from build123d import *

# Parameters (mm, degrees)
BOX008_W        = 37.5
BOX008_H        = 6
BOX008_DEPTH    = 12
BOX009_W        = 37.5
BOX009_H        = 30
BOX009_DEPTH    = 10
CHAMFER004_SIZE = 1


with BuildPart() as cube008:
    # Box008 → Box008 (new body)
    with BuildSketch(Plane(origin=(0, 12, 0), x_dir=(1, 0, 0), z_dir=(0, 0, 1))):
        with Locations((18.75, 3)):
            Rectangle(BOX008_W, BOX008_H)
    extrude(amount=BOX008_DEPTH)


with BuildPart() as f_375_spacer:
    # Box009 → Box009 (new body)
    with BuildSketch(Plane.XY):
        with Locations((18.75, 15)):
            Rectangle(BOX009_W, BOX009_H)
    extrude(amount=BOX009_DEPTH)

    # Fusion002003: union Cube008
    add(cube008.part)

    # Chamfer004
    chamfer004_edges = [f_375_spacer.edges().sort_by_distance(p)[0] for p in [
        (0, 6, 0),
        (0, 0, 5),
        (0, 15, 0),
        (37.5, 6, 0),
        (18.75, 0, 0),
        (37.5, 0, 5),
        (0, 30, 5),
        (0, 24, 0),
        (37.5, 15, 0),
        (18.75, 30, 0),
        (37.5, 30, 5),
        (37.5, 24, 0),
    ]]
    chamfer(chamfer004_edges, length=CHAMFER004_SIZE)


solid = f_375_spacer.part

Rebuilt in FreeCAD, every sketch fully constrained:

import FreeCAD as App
import Part
import Sketcher
Q = App.Units.Quantity


def edges_at(feature, points):
    """Names of the edges that pass closest to the given points."""
    edges = feature.Shape.Edges
    near = lambda p: min(range(len(edges)), key=lambda i: edges[i].distToShape(Part.Vertex(*p))[0])
    return sorted({f"Edge{near(p) + 1}" for p in points})

doc = App.newDocument("Part")
params = doc.addObject("Spreadsheet::Sheet", "Params")
for row, (alias, value) in enumerate([
    ("sketch1_height", "6 mm"),
    ("sketch1_width", "37.5 mm"),
    ("pad1_length", "12 mm"),
    ("sketch2_height", "30 mm"),
    ("sketch2_width", "37.5 mm"),
    ("pad2_length", "10 mm"),
    ("chamfer_size", "1 mm"),
], start=1):
    params.set(f"A{row}", alias)
    params.set(f"B{row}", "=" + value)
    params.setAlias(f"B{row}", alias)

body = doc.addObject("PartDesign::Body", "Body")

sketch1 = body.newObject("Sketcher::SketchObject", "Sketch")
sketch1.AttachmentSupport = (doc.getObject("XY_Plane"), [""])
sketch1.MapMode = "FlatFace"
sketch1.addGeometry([
    Part.LineSegment(App.Vector(0, 18, 0), App.Vector(0, 12, 0)),
    Part.LineSegment(App.Vector(0, 12, 0), App.Vector(38, 12, 0)),
    Part.LineSegment(App.Vector(38, 12, 0), App.Vector(38, 18, 0)),
    Part.LineSegment(App.Vector(38, 18, 0), App.Vector(0, 18, 0)),
], False)
sketch1.addConstraint([
    Sketcher.Constraint("Coincident", 0, 2, 1, 1),
    Sketcher.Constraint("Coincident", 1, 2, 2, 1),
    Sketcher.Constraint("Coincident", 2, 2, 3, 1),
    Sketcher.Constraint("Coincident", 3, 2, 0, 1),
    Sketcher.Constraint("Vertical", 0),
    Sketcher.Constraint("Horizontal", 1),
    Sketcher.Constraint("Vertical", 2),
    Sketcher.Constraint("Horizontal", 3),
    Sketcher.Constraint("PointOnObject", 0, 2, -2),
    Sketcher.Constraint("DistanceY", 0, 2, 0, 1, Q("6 mm")),
    Sketcher.Constraint("DistanceX", 1, 1, 1, 2, Q("37.5 mm")),
    Sketcher.Constraint("DistanceY", -1, 1, 0, 2, Q("12 mm")),
])
sketch1.setExpression("Constraints[9]", "Params.sketch1_height")
sketch1.setExpression("Constraints[10]", "Params.sketch1_width")
pad1 = body.newObject("PartDesign::Pad", "Pad")
pad1.Profile = sketch1
pad1.setExpression("Length", "Params.pad1_length")
body2 = doc.addObject("PartDesign::Body", "Body001")

sketch2 = body2.newObject("Sketcher::SketchObject", "Sketch001")
sketch2.AttachmentSupport = (doc.getObject("XY_Plane001"), [""])
sketch2.MapMode = "FlatFace"
sketch2.addGeometry([
    Part.LineSegment(App.Vector(0, 30, 0), App.Vector(0, 0, 0)),
    Part.LineSegment(App.Vector(0, 0, 0), App.Vector(38, 0, 0)),
    Part.LineSegment(App.Vector(38, 0, 0), App.Vector(38, 30, 0)),
    Part.LineSegment(App.Vector(38, 30, 0), App.Vector(0, 30, 0)),
], False)
sketch2.addConstraint([
    Sketcher.Constraint("Coincident", 0, 2, 1, 1),
    Sketcher.Constraint("Coincident", 1, 2, 2, 1),
    Sketcher.Constraint("Coincident", 2, 2, 3, 1),
    Sketcher.Constraint("Coincident", 3, 2, 0, 1),
    Sketcher.Constraint("Vertical", 0),
    Sketcher.Constraint("Horizontal", 1),
    Sketcher.Constraint("Vertical", 2),
    Sketcher.Constraint("Horizontal", 3),
    Sketcher.Constraint("Coincident", 0, 2, -1, 1),
    Sketcher.Constraint("DistanceY", 0, 2, 0, 1, Q("30 mm")),
    Sketcher.Constraint("DistanceX", 1, 1, 1, 2, Q("37.5 mm")),
])
sketch2.setExpression("Constraints[9]", "Params.sketch2_height")
sketch2.setExpression("Constraints[10]", "Params.sketch2_width")
pad2 = body2.newObject("PartDesign::Pad", "Pad001")
pad2.Profile = sketch2
pad2.setExpression("Length", "Params.pad2_length")
doc.recompute()

boolean = body2.newObject("PartDesign::Boolean", "Boolean")
boolean.Type = "Fuse"
boolean.addObjects([body])
doc.recompute()

chamfer = body2.newObject("PartDesign::Chamfer", "Chamfer")
chamfer.Base = (boolean, edges_at(boolean, [
    (0, 15, 0),
    (0, 0, 5),
    (0, 15, 0),
    (37.5, 15, 0),
    (18.75, 0, 0),
    (37.5, 0, 5),
    (0, 30, 5),
    (0, 15, 0),
    (37.5, 15, 0),
    (18.75, 30, 0),
    (37.5, 30, 5),
    (37.5, 15, 0),
]))
chamfer.setExpression("Size", "Params.chamfer_size")

doc.recompute()
